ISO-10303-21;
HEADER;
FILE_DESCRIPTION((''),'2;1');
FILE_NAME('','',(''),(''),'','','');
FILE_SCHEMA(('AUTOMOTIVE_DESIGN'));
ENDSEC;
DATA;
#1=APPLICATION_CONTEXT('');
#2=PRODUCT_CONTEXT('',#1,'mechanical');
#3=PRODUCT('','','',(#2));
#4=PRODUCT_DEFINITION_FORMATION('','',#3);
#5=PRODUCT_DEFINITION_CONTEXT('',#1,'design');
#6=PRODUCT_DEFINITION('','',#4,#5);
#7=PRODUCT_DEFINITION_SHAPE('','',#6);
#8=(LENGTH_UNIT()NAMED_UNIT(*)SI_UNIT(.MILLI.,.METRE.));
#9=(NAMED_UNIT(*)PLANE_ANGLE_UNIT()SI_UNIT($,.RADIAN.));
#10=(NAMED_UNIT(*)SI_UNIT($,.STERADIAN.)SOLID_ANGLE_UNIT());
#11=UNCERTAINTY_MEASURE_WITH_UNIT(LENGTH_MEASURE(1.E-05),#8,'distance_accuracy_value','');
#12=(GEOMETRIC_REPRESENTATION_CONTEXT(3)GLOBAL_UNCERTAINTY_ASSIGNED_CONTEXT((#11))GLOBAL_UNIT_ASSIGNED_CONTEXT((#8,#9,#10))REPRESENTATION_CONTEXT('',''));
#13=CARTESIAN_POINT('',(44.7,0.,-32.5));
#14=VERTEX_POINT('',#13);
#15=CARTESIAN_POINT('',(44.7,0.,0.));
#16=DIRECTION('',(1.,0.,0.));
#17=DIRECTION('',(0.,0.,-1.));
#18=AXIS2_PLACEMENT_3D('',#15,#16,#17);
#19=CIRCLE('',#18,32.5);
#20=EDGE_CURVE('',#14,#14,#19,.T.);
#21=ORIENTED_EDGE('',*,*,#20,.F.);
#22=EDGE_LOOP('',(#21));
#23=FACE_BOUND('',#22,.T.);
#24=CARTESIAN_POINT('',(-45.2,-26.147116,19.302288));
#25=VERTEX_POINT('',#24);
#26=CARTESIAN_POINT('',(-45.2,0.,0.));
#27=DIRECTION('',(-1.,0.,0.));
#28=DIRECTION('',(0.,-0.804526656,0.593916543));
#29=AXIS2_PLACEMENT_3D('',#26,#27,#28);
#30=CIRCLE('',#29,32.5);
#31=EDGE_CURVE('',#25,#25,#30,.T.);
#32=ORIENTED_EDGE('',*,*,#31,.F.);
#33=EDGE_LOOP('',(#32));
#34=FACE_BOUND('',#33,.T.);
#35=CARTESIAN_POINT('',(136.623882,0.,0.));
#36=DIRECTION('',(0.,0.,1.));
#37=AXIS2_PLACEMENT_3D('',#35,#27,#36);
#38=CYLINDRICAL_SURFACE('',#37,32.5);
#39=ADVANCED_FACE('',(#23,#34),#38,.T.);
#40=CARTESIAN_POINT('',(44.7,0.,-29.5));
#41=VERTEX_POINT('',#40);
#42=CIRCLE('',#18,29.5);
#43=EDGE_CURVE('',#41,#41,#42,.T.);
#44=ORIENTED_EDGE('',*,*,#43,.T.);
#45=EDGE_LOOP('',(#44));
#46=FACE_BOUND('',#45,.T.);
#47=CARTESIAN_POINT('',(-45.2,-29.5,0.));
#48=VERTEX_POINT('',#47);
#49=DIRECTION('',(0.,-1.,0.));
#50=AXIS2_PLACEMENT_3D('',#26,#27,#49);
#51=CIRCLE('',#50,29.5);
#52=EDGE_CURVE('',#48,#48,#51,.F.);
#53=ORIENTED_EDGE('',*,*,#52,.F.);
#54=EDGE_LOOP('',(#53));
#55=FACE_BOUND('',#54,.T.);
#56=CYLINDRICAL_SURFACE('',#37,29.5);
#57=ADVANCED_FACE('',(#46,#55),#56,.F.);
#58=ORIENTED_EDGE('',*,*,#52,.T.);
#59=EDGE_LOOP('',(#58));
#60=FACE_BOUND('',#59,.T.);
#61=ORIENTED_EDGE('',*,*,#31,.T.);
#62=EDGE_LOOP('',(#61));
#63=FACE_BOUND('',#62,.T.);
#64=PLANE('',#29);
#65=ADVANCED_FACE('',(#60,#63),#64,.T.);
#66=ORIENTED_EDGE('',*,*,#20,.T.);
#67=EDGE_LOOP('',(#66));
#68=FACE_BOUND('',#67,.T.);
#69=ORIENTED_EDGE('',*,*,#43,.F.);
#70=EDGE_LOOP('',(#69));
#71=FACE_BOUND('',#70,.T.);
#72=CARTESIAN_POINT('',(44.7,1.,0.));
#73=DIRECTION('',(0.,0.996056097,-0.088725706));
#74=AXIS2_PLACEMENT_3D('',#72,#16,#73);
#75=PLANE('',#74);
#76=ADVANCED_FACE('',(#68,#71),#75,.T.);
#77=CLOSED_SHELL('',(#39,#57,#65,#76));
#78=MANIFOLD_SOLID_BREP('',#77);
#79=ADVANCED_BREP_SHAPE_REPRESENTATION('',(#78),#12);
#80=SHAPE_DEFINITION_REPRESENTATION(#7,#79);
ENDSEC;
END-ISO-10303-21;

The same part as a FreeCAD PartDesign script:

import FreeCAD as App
import Part
import Sketcher
from FreeCAD import Vector
Q = App.Units.Quantity

doc = App.newDocument("Part")
body = doc.addObject("PartDesign::Body", "Body")

sketch1 = body.newObject("Sketcher::SketchObject", "Sketch")
sketch1.AttachmentSupport = (doc.getObject("YZ_Plane"), [""])
sketch1.MapMode = "FlatFace"
sketch1.addGeometry([
    Part.Circle(Vector(0, 0, 0), Vector(0, 0, 1), 32.5),
    Part.Circle(Vector(0, 0, 0), Vector(0, 0, 1), 29.5),
], False)
sketch1.addConstraint([
    Sketcher.Constraint("Coincident", 0, 3, -1, 1),
    Sketcher.Constraint("Coincident", 1, 3, -1, 1),
    Sketcher.Constraint("Diameter", 0, Q("65 mm")),
    Sketcher.Constraint("Diameter", 1, Q("59 mm")),
])
pad1 = body.newObject("PartDesign::Pad", "Pad")
pad1.Profile = sketch1
pad1.Type = "TwoLengths"
pad1.Length = 44.7
pad1.Length2 = 45.2

doc.recompute()
